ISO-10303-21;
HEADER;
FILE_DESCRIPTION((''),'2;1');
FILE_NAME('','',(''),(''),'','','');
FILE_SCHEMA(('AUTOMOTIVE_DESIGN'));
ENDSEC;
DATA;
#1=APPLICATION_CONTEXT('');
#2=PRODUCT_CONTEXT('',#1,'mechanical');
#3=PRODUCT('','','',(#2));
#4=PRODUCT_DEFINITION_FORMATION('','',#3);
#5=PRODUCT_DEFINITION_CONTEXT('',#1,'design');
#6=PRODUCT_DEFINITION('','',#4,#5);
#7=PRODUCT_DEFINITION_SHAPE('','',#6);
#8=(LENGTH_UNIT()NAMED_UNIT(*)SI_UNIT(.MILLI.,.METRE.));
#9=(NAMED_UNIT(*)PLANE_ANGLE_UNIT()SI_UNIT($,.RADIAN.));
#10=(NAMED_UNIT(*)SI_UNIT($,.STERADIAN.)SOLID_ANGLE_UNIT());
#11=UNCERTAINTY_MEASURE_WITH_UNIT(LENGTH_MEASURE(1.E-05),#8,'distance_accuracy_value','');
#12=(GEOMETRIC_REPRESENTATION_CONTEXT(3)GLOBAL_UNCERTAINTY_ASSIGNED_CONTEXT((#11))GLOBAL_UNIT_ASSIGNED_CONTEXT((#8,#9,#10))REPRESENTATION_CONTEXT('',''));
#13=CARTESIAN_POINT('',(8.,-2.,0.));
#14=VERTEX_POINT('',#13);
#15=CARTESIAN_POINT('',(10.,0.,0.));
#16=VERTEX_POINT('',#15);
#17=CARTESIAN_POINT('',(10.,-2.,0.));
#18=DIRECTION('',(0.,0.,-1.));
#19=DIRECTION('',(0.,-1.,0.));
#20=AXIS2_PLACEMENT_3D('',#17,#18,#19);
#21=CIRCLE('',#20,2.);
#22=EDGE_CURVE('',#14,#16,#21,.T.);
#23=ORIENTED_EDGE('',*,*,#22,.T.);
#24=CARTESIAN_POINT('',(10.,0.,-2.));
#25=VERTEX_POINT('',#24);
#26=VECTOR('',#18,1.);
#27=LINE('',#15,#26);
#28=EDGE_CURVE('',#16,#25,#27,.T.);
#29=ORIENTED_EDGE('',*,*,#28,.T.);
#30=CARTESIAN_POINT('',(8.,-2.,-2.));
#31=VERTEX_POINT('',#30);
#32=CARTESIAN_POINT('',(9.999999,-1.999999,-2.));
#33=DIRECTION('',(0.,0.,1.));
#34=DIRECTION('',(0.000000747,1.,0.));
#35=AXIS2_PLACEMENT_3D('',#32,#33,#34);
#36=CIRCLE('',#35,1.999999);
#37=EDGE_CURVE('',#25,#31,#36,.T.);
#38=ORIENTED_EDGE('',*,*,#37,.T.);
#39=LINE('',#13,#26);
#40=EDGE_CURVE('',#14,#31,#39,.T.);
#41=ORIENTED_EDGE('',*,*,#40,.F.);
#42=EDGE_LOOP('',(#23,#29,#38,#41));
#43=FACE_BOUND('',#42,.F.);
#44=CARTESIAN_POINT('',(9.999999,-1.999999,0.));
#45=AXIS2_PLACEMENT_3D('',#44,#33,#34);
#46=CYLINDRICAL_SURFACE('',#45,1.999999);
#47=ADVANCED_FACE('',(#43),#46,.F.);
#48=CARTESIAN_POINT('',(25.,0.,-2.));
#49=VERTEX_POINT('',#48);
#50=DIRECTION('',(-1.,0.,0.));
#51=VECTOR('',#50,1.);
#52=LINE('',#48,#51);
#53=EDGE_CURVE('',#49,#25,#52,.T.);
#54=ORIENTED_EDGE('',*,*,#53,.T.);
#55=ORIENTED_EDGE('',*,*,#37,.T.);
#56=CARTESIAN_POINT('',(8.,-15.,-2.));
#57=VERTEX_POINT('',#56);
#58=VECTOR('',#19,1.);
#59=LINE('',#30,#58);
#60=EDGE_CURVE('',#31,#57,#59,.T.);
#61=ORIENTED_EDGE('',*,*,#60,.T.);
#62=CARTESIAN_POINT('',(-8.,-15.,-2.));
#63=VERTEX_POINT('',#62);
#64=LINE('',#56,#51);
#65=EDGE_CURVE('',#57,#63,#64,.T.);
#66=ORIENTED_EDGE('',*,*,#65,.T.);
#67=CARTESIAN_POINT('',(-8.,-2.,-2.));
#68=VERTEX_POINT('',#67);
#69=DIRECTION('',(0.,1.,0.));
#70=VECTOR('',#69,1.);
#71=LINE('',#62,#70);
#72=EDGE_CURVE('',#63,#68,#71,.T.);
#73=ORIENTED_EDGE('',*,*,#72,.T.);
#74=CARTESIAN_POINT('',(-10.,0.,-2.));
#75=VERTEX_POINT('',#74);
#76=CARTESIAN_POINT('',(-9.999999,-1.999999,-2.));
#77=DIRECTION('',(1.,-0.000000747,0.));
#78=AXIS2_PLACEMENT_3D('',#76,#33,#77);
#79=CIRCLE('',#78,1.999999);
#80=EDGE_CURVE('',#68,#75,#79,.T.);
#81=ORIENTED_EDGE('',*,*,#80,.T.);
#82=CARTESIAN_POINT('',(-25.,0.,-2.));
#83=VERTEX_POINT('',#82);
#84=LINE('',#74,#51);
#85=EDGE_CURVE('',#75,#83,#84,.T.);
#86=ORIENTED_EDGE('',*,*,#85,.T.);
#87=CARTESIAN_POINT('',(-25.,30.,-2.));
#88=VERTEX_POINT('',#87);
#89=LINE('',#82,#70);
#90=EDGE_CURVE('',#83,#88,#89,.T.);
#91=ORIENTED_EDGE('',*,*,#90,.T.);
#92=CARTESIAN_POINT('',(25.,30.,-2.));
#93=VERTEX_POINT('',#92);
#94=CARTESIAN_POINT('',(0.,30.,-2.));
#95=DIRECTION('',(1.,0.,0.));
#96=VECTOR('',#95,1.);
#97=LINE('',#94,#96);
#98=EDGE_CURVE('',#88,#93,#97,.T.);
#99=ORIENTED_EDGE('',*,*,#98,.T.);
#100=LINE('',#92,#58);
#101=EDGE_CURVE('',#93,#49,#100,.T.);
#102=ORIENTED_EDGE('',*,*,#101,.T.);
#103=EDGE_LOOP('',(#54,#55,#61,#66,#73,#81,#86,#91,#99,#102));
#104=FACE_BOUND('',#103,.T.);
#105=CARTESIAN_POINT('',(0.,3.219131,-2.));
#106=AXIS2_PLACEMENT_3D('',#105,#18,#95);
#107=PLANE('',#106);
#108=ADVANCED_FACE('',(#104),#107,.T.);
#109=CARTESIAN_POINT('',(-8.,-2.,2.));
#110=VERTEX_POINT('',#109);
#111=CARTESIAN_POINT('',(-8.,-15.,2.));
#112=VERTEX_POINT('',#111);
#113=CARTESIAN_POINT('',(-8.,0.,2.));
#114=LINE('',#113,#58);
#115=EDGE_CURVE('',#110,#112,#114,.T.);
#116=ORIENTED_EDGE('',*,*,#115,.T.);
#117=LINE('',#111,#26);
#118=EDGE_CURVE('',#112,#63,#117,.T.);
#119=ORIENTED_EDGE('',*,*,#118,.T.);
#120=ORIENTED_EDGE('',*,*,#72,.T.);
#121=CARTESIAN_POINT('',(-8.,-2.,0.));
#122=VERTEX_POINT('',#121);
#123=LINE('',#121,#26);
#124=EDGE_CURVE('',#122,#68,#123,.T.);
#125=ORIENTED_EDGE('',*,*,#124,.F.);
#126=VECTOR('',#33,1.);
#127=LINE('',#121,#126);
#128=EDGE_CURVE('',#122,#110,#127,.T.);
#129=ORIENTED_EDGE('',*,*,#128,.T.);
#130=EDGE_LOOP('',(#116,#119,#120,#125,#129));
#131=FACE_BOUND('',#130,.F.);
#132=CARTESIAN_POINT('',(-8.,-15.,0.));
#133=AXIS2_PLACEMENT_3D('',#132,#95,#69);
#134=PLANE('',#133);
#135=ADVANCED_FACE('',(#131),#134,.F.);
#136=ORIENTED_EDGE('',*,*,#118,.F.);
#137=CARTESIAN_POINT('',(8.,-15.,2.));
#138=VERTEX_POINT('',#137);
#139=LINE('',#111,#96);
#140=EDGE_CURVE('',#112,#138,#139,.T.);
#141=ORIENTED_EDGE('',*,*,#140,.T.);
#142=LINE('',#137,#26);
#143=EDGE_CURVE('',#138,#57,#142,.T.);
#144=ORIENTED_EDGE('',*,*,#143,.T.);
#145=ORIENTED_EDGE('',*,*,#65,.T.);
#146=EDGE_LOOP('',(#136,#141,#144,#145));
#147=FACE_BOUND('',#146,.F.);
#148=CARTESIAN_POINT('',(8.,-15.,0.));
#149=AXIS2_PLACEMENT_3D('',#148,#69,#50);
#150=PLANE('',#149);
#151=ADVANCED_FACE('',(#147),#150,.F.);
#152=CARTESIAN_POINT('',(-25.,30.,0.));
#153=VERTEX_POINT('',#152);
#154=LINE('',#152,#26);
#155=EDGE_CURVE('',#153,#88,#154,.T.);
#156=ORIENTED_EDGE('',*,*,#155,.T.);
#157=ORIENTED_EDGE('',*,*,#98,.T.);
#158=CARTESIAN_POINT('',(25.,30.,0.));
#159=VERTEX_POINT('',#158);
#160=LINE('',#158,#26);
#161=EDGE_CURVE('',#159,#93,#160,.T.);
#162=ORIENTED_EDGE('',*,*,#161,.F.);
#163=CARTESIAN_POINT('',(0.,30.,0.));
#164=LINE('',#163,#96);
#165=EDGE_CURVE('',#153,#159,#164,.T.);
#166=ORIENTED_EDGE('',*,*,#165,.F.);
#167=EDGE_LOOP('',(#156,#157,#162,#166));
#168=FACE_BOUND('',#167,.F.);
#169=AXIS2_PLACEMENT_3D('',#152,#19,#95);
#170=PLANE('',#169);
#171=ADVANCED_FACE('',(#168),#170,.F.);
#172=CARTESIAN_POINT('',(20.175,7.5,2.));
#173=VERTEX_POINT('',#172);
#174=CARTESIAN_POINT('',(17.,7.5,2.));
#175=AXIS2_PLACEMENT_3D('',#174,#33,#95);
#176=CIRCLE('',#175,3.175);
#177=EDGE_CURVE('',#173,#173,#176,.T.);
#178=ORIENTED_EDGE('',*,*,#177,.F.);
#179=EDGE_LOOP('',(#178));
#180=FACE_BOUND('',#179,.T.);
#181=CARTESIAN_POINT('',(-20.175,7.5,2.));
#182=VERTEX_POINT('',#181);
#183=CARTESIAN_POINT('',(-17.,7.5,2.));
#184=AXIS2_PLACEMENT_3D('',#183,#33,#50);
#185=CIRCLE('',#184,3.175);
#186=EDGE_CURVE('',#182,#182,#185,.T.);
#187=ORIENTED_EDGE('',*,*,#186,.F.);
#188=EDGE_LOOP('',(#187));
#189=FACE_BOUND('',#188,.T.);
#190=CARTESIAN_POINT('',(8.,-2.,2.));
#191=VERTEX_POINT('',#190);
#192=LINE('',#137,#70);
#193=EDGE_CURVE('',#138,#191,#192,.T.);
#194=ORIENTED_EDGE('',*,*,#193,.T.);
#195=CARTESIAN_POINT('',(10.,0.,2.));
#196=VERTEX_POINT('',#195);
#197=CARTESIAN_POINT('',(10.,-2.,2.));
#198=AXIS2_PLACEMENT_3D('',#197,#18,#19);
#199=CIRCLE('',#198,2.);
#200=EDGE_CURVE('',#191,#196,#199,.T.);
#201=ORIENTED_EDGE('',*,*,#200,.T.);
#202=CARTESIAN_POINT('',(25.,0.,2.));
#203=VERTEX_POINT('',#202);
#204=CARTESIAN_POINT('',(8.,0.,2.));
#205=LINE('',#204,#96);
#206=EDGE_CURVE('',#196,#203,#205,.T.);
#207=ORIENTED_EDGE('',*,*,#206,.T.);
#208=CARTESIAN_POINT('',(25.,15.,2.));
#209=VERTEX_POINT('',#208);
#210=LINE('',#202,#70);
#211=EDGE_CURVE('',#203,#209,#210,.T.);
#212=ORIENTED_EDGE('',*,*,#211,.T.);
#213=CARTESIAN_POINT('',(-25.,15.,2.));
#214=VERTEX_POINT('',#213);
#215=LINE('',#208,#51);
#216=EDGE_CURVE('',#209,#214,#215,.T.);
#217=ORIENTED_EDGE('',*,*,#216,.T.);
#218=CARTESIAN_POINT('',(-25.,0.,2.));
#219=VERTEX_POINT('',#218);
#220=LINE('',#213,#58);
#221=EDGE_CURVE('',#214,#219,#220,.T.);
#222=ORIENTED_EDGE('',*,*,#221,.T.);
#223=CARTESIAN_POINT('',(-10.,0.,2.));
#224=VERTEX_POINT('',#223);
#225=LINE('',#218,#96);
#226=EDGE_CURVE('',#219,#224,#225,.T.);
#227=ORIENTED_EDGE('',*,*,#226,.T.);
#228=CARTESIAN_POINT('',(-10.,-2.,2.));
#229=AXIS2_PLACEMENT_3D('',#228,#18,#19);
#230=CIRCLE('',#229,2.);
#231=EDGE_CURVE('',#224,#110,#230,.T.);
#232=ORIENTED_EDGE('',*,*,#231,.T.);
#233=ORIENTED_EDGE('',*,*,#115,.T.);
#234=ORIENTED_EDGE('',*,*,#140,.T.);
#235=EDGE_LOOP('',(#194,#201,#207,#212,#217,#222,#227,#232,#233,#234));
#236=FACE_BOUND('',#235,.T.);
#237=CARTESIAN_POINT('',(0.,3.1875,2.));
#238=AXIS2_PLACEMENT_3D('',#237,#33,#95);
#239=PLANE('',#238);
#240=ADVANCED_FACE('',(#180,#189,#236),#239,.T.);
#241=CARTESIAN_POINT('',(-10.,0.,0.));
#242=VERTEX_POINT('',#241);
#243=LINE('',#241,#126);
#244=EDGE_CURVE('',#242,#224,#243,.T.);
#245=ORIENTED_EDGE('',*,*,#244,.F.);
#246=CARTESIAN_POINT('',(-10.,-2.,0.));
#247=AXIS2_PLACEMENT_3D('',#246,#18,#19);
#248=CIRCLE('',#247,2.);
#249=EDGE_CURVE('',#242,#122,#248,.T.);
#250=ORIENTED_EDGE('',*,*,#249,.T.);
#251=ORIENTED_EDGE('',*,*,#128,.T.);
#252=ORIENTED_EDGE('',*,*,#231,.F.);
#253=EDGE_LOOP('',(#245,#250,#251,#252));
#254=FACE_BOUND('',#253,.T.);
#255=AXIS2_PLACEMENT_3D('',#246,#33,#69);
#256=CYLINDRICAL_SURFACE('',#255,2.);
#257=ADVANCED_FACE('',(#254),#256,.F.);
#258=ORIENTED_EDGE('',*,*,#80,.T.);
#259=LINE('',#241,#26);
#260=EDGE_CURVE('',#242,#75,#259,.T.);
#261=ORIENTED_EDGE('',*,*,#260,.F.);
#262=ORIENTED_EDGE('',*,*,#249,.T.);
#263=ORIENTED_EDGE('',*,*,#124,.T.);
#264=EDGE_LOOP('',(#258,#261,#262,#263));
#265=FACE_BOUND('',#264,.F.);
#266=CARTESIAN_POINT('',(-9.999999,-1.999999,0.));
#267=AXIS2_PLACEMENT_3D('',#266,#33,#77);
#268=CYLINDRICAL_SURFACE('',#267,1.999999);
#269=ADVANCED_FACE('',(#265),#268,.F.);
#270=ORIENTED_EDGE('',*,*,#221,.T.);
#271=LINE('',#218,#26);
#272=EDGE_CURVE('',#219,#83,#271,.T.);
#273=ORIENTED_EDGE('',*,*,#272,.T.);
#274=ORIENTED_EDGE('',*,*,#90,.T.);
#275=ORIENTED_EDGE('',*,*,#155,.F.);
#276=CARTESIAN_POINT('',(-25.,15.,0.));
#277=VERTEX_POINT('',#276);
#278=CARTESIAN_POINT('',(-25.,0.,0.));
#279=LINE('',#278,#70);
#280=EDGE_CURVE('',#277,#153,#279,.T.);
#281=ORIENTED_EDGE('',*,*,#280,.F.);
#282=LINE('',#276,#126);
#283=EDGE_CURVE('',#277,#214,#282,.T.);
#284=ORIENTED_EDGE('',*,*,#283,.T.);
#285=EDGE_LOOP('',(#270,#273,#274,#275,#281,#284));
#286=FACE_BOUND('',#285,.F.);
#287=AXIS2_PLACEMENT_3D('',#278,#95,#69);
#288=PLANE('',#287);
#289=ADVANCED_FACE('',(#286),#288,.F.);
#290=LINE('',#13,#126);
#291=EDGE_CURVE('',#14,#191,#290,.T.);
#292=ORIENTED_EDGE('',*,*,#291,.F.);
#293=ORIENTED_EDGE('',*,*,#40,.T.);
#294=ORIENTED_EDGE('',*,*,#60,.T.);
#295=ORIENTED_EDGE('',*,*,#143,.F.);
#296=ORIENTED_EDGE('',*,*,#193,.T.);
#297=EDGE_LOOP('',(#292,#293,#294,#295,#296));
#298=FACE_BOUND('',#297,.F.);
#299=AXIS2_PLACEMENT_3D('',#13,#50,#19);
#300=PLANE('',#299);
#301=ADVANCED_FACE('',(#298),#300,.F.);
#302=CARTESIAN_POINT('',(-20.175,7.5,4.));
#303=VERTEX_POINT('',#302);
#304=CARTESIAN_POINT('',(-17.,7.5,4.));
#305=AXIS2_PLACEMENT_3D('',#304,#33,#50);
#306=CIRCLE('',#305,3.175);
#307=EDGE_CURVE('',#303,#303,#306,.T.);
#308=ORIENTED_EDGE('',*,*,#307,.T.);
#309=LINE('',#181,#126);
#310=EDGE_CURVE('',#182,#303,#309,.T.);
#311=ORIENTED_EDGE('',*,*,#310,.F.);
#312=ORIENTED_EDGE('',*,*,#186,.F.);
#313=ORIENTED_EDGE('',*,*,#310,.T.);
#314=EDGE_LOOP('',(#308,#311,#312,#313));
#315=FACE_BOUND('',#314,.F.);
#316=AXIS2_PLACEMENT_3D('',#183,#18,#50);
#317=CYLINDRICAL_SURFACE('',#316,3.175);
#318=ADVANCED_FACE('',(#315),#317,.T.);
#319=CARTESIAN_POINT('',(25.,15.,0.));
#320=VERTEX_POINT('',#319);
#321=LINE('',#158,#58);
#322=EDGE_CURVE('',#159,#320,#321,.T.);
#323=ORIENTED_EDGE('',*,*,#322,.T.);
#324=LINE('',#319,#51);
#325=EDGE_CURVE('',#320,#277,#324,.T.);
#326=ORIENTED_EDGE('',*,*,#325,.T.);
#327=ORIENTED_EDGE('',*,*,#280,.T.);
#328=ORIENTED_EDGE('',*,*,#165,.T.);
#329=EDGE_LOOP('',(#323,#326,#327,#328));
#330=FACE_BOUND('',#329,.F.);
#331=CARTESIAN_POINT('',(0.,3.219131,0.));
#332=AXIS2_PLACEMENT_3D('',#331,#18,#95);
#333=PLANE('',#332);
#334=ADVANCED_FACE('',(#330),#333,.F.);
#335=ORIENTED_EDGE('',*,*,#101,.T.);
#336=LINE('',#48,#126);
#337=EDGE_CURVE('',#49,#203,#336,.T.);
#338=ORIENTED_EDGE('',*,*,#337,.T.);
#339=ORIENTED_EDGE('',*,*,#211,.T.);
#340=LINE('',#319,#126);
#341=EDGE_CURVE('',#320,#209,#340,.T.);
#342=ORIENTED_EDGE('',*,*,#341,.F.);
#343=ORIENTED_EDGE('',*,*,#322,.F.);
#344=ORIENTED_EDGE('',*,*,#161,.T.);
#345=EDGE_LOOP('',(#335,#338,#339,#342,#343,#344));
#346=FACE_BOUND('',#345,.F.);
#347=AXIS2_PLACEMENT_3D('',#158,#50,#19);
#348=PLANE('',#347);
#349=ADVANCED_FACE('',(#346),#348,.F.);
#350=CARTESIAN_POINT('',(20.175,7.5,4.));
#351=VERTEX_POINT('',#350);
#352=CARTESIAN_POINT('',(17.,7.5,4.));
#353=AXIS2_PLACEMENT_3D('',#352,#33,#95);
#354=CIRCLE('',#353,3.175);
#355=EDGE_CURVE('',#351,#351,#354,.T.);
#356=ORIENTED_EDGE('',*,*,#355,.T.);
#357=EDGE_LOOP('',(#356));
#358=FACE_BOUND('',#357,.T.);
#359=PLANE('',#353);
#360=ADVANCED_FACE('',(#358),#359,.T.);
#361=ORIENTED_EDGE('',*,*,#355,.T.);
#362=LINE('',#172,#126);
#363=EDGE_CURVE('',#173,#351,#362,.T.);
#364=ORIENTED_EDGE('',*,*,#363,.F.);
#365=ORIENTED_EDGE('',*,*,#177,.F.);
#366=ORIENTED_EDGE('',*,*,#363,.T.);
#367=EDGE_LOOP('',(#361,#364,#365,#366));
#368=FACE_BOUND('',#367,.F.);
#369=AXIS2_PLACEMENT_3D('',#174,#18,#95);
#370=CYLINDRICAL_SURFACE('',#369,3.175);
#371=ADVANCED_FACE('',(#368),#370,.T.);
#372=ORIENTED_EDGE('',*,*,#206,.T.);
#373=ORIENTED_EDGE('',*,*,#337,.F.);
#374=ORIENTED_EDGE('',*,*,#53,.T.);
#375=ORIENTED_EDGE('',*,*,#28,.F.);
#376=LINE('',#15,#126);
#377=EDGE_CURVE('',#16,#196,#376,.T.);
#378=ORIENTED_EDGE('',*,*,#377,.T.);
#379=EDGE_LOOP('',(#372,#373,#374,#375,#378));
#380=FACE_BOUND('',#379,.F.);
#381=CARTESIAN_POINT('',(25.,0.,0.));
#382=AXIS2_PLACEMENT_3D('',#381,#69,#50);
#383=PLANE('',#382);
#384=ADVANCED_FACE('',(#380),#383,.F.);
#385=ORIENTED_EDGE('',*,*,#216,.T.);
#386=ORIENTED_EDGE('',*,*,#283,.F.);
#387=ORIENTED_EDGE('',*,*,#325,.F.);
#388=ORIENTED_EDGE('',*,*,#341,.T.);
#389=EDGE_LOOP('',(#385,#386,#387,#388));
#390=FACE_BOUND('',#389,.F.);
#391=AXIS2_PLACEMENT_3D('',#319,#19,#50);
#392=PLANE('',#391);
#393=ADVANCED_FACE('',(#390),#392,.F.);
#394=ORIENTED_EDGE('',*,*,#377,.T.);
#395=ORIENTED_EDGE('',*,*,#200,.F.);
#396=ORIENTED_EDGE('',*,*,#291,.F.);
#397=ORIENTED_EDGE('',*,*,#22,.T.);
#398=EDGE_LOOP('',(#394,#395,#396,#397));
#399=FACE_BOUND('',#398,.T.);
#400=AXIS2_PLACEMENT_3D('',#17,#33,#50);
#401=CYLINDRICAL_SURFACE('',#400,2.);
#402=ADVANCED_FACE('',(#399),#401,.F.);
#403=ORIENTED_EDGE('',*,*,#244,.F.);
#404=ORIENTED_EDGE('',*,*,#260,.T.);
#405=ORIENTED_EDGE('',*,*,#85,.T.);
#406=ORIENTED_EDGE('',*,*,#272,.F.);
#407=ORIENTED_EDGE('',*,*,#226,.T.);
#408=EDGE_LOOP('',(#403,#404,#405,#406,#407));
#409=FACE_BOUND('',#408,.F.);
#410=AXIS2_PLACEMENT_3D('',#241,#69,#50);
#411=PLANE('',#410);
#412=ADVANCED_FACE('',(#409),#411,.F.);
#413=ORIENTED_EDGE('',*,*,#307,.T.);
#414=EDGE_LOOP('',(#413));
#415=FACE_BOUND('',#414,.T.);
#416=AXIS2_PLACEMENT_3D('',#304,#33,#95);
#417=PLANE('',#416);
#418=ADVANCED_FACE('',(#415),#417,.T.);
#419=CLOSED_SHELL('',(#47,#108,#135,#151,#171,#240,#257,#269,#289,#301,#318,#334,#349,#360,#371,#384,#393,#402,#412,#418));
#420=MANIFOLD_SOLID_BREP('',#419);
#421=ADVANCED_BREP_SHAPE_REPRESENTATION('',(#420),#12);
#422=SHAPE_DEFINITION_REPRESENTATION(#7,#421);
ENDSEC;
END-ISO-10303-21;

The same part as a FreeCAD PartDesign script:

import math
import FreeCAD as App
import Part
import Sketcher
Q = App.Units.Quantity


def edges_at(feature, points):
    """Names of the edges that pass closest to the given points."""
    edges = feature.Shape.Edges
    near = lambda p: min(range(len(edges)), key=lambda i: edges[i].distToShape(Part.Vertex(*p))[0])
    return sorted({f"Edge{near(p) + 1}" for p in points})


def add_polygon(sketch, points):
    """Adds a closed chain of lines whose ends are joined by coincident constraints."""
    first, n = sketch.GeometryCount, len(points)
    for a, b in zip(points, points[1:] + points[:1]):
        sketch.addGeometry(Part.LineSegment(App.Vector(*a, 0), App.Vector(*b, 0)), False)
    for i in range(n):
        sketch.addConstraint(Sketcher.Constraint("Coincident", first + i, 2, first + (i + 1) % n, 1))

doc = App.newDocument("Part")
body = doc.addObject("PartDesign::Body", "Body")

# Sketch on XY plane
sketch1 = body.newObject("Sketcher::SketchObject", "Sketch")
sketch1.AttachmentSupport = (doc.getObject("XY_Plane"), [""])
sketch1.MapMode = "FlatFace"
add_polygon(sketch1, [(-8, -15), (8, -15), (8, 0), (25, 0), (25, 15), (-25, 15), (-25, 0), (-8, 0)])  # lines 0-7
sketch1.addConstraint(Sketcher.Constraint("Horizontal", 0))
sketch1.addConstraint(Sketcher.Constraint("Vertical", 1))
sketch1.addConstraint(Sketcher.Constraint("Horizontal", 2))
sketch1.addConstraint(Sketcher.Constraint("Vertical", 3))
sketch1.addConstraint(Sketcher.Constraint("Horizontal", 4))
sketch1.addConstraint(Sketcher.Constraint("Vertical", 5))
sketch1.addConstraint(Sketcher.Constraint("Horizontal", 6))
sketch1.addConstraint(Sketcher.Constraint("Vertical", 7))
sketch1.addConstraint(Sketcher.Constraint("Symmetric", 2, 2, 5, 2, -1, 1))
sketch1.addConstraint(Sketcher.Constraint("Symmetric", 1, 2, 6, 2, -2))
sketch1.addConstraint(Sketcher.Constraint("Equal", 1, 3))
sketch1.addConstraint(Sketcher.Constraint("DistanceX", 0, 1, 0, 2, Q("16 mm")))
sketch1.addConstraint(Sketcher.Constraint("DistanceX", 2, 1, 2, 2, Q("17 mm")))
sketch1.addConstraint(Sketcher.Constraint("DistanceY", 1, 1, 1, 2, Q("15 mm")))
pad1 = body.newObject("PartDesign::Pad", "Pad")
pad1.Profile = sketch1
pad1.Length = 2
doc.recompute()

fillet = body.newObject("PartDesign::Fillet", "Fillet")
fillet.Base = (pad1, edges_at(pad1, [(-8, 0, 1), (8, 0, 1)]))
fillet.Radius = 2

# Sketch on XY plane
sketch2 = body.newObject("Sketcher::SketchObject", "Sketch001")
sketch2.AttachmentSupport = (doc.getObject("XY_Plane"), [""])
sketch2.MapMode = "FlatFace"
sketch2.AttachmentOffset = App.Placement(App.Vector(0, 0, 2), App.Rotation())
sketch2.addGeometry(Part.Circle(App.Vector(-17, 7.5, 0), App.Vector(0, 0, 1), 3.2), False)
sketch2.addGeometry(Part.Circle(App.Vector(17, 7.5, 0), App.Vector(0, 0, 1), 3.2), False)
sketch2.addConstraint(Sketcher.Constraint("Equal", 0, 1))
sketch2.addConstraint(Sketcher.Constraint("Symmetric", 0, 3, 1, 3, -2))
sketch2.addConstraint(Sketcher.Constraint("Diameter", 0, Q("6.35 mm")))
sketch2.addConstraint(Sketcher.Constraint("DistanceX", 0, 3, -1, 1, Q("17 mm")))
sketch2.addConstraint(Sketcher.Constraint("DistanceY", -1, 1, 0, 3, Q("7.5 mm")))
pad2 = body.newObject("PartDesign::Pad", "Pad001")
pad2.Profile = sketch2
pad2.Length = 2

# Sketch on XY plane
sketch3 = body.newObject("Sketcher::SketchObject", "Sketch002")
sketch3.AttachmentSupport = (doc.getObject("XY_Plane"), [""])
sketch3.MapMode = "FlatFace"
sketch3.addGeometry(Part.LineSegment(App.Vector(8, -2, 0), App.Vector(8, -15, 0)), False)
sketch3.addGeometry(Part.LineSegment(App.Vector(8, -15, 0), App.Vector(-8, -15, 0)), False)
sketch3.addGeometry(Part.LineSegment(App.Vector(-8, -15, 0), App.Vector(-8, -2, 0)), False)
sketch3.addGeometry(Part.ArcOfCircle(Part.Circle(App.Vector(-10, -2, 0), App.Vector(0, 0, 1), 2), math.radians(0), math.radians(90)), False)
sketch3.addGeometry(Part.LineSegment(App.Vector(-10, 0, 0), App.Vector(-25, 0, 0)), False)
sketch3.addGeometry(Part.LineSegment(App.Vector(-25, 0, 0), App.Vector(-25, 30, 0)), False)
sketch3.addGeometry(Part.LineSegment(App.Vector(-25, 30, 0), App.Vector(25, 30, 0)), False)
sketch3.addGeometry(Part.LineSegment(App.Vector(25, 30, 0), App.Vector(25, 0, 0)), False)
sketch3.addGeometry(Part.LineSegment(App.Vector(25, 0, 0), App.Vector(10, 0, 0)), False)
sketch3.addGeometry(Part.ArcOfCircle(Part.Circle(App.Vector(10, -2, 0), App.Vector(0, 0, 1), 2), math.radians(90), math.radians(180)), False)
sketch3.addConstraint(Sketcher.Constraint("Coincident", 0, 2, 1, 1))
sketch3.addConstraint(Sketcher.Constraint("Coincident", 1, 2, 2, 1))
sketch3.addConstraint(Sketcher.Constraint("Tangent", 2, 2, 3, 1))
sketch3.addConstraint(Sketcher.Constraint("Tangent", 3, 2, 4, 1))
sketch3.addConstraint(Sketcher.Constraint("Coincident", 4, 2, 5, 1))
sketch3.addConstraint(Sketcher.Constraint("Coincident", 5, 2, 6, 1))
sketch3.addConstraint(Sketcher.Constraint("Coincident", 6, 2, 7, 1))
sketch3.addConstraint(Sketcher.Constraint("Coincident", 7, 2, 8, 1))
sketch3.addConstraint(Sketcher.Constraint("Tangent", 8, 2, 9, 1))
sketch3.addConstraint(Sketcher.Constraint("Tangent", 9, 2, 0, 1))
sketch3.addConstraint(Sketcher.Constraint("Vertical", 0))
sketch3.addConstraint(Sketcher.Constraint("Horizontal", 1))
sketch3.addConstraint(Sketcher.Constraint("Vertical", 2))
sketch3.addConstraint(Sketcher.Constraint("Horizontal", 4))
sketch3.addConstraint(Sketcher.Constraint("Vertical", 5))
sketch3.addConstraint(Sketcher.Constraint("Horizontal", 6))
sketch3.addConstraint(Sketcher.Constraint("Vertical", 7))
sketch3.addConstraint(Sketcher.Constraint("Horizontal", 8))
sketch3.addConstraint(Sketcher.Constraint("Equal", 3, 9))
sketch3.addConstraint(Sketcher.Constraint("Symmetric", 4, 2, 7, 2, -1, 1))
sketch3.addConstraint(Sketcher.Constraint("Symmetric", 3, 3, 9, 3, -2))
sketch3.addConstraint(Sketcher.Constraint("Radius", 3, Q("1.999999 mm")))
sketch3.addConstraint(Sketcher.Constraint("DistanceX", 1, 2, 1, 1, Q("16 mm")))
sketch3.addConstraint(Sketcher.Constraint("DistanceX", 4, 2, 4, 1, Q("15 mm")))
sketch3.addConstraint(Sketcher.Constraint("DistanceY", 0, 2, 0, 1, Q("13 mm")))
sketch3.addConstraint(Sketcher.Constraint("DistanceY", 5, 1, 5, 2, Q("30 mm")))
pad3 = body.newObject("PartDesign::Pad", "Pad002")
pad3.Profile = sketch3
pad3.Length = 2
pad3.Reversed = True

doc.recompute()
